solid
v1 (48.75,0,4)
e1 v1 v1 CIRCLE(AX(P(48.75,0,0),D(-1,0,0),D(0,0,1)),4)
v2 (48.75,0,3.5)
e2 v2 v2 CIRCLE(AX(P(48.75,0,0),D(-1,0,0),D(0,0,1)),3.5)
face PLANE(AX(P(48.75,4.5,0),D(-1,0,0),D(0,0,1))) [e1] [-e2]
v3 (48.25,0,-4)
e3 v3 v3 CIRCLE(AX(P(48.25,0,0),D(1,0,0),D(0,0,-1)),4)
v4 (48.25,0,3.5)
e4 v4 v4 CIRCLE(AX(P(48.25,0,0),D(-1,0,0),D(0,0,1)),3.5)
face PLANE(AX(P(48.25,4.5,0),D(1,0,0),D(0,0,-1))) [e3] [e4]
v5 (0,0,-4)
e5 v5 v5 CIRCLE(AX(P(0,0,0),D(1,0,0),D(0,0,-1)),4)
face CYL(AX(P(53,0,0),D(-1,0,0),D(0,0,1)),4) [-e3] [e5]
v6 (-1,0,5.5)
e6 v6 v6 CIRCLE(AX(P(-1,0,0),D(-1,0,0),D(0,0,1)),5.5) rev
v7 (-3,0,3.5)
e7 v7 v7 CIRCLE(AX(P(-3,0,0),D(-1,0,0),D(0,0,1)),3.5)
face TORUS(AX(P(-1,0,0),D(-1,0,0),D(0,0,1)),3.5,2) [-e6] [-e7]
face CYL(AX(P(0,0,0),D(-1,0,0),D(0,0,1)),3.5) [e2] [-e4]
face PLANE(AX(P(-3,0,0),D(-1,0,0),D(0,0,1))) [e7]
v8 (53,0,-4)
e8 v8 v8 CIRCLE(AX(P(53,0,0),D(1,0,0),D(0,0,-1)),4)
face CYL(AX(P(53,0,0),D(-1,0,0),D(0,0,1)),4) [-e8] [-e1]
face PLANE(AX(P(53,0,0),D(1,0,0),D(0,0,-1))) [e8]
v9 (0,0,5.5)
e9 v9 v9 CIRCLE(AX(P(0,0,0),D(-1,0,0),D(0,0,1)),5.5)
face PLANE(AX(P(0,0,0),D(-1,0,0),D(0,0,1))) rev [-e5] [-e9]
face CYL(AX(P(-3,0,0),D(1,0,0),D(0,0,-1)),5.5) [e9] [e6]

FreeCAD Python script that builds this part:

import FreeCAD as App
import Part
import Sketcher


def edges_at(feature, points):
    """Names of the edges that pass closest to the given points."""
    edges = feature.Shape.Edges
    near = lambda p: min(range(len(edges)), key=lambda i: edges[i].distToShape(Part.Vertex(*p))[0])
    return sorted({f"Edge{near(p) + 1}" for p in points})


def add_polygon(sketch, points):
    """Adds a closed chain of lines whose ends are joined by coincident constraints."""
    first, n = sketch.GeometryCount, len(points)
    for a, b in zip(points, points[1:] + points[:1]):
        sketch.addGeometry(Part.LineSegment(App.Vector(*a, 0), App.Vector(*b, 0)), False)
    for i in range(n):
        sketch.addConstraint(Sketcher.Constraint("Coincident", first + i, 2, first + (i + 1) % n, 1))

doc = App.newDocument("Part")
body = doc.addObject("PartDesign::Body", "Body")

# Sketch on YZ plane
sketch1 = doc.addObject("Sketcher::SketchObject", "Sketch")
body.addObject(sketch1)
sketch1.AttachmentSupport = (doc.YZ_Plane, [""])
sketch1.MapMode = "FlatFace"
sketch1.addGeometry(Part.Circle(App.Vector(0, 0, 0), App.Vector(0, 0, 1), 4), False)
sketch1.addConstraint([
    Sketcher.Constraint("Coincident", 0, 3, -1, 1),
    Sketcher.Constraint("Diameter", 0, 8.0),
])
pad1 = doc.addObject("PartDesign::Pad", "Pad")
body.addObject(pad1)
pad1.Profile = sketch1
pad1.Length = 53

# Sketch on YZ plane
sketch2 = doc.addObject("Sketcher::SketchObject", "Sketch001")
body.addObject(sketch2)
sketch2.AttachmentSupport = (doc.YZ_Plane, [""])
sketch2.MapMode = "FlatFace"
sketch2.addGeometry(Part.Circle(App.Vector(0, 0, 0), App.Vector(0, 0, 1), 5.5), False)
sketch2.addConstraint([
    Sketcher.Constraint("Coincident", 0, 3, -1, 1),
    Sketcher.Constraint("Diameter", 0, 11.0),
])
pad2 = doc.addObject("PartDesign::Pad", "Pad001")
body.addObject(pad2)
pad2.Profile = sketch2
pad2.Length = 3
pad2.Reversed = True
doc.recompute()

fillet = doc.addObject("PartDesign::Fillet", "Fillet")
body.addObject(fillet)
fillet.Base = (pad2, edges_at(pad2, [(-3, 0, -5.5)]))
fillet.Radius = 2

# Sketch on XY plane
sketch3 = doc.addObject("Sketcher::SketchObject", "Sketch002")
body.addObject(sketch3)
sketch3.AttachmentSupport = (doc.XY_Plane, [""])
sketch3.MapMode = "FlatFace"
add_polygon(sketch3, [(48.25, 4.5), (48.25, 3.5), (48.75, 3.5), (48.75, 4.5)])  # lines 0-3
sketch3.addConstraint([
    Sketcher.Constraint("Vertical", 0),
    Sketcher.Constraint("Horizontal", 1),
    Sketcher.Constraint("Vertical", 2),
    Sketcher.Constraint("Horizontal", 3),
    Sketcher.Constraint("DistanceY", 0, 2, 0, 1, 1.0),
    Sketcher.Constraint("DistanceX", 1, 1, 1, 2, 0.5),
    Sketcher.Constraint("DistanceY", -1, 1, 0, 2, 3.5),
    Sketcher.Constraint("DistanceX", -1, 1, 0, 2, 48.25),
])
groove = doc.addObject("PartDesign::Groove", "Groove")
body.addObject(groove)
groove.Profile = sketch3
groove.ReferenceAxis = (sketch3, ["H_Axis"])
groove.Angle = 360

doc.recompute()
